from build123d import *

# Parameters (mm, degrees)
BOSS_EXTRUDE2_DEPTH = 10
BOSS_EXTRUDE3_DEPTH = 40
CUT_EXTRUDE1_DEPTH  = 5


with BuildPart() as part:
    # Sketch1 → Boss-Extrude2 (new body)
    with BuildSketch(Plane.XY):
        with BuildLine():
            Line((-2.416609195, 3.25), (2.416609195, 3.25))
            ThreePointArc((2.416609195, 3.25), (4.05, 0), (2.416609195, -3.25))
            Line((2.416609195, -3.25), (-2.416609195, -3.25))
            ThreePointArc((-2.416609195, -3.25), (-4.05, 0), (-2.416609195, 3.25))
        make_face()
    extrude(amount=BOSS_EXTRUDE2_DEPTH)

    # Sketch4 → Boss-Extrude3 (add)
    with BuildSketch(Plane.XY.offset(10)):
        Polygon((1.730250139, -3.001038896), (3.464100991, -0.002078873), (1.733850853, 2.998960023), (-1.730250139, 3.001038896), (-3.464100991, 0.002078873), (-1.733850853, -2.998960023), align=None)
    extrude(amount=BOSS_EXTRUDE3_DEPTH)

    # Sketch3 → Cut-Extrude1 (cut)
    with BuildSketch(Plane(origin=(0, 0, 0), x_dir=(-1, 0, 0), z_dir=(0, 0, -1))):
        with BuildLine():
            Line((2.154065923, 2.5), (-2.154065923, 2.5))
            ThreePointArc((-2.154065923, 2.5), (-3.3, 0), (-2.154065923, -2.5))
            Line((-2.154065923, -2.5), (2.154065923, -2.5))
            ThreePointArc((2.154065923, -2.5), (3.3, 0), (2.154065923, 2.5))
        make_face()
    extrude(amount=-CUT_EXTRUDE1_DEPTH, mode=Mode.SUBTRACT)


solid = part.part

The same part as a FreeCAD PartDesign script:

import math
import FreeCAD as App
import Part
import Sketcher

V = App.Vector
Q = App.Units.Quantity


def add_polygon(sketch, points):
    """Adds a closed chain of lines whose ends are joined by coincident constraints."""
    first, n = sketch.GeometryCount, len(points)
    for a, b in zip(points, points[1:] + points[:1]):
        sketch.addGeometry(Part.LineSegment(App.Vector(*a, 0), App.Vector(*b, 0)), False)
    for i in range(n):
        sketch.addConstraint(Sketcher.Constraint("Coincident", first + i, 2, first + (i + 1) % n, 1))

doc = App.newDocument("Part")
params = doc.addObject("Spreadsheet::Sheet", "Params")
for row, (alias, value) in enumerate([
    ("sketch1_radius", "4.05 mm"),
    ("pad1_length", "10 mm"),
    ("pad2_length", "40 mm"),
    ("sketch3_radius", "3.3 mm"),
    ("pocket1_length", "5 mm"),
], start=1):
    params.set(f"A{row}", alias)
    params.set(f"B{row}", "=" + value)
    params.setAlias(f"B{row}", alias)

body = doc.addObject("PartDesign::Body", "Body")

# Sketch on XY plane
sketch1 = body.newObject("Sketcher::SketchObject", "Sketch")
sketch1.AttachmentSupport = (doc.getObject("XY_Plane"), [""])
sketch1.MapMode = "FlatFace"
sketch1.addGeometry([
    Part.LineSegment(V(2.416609, 3.25, 0), V(-2.416609, 3.25, 0)),
    Part.ArcOfCircle(Part.Circle(V(0, 0, 0), V(0, 0, 1), 4.05), math.radians(126.633461), math.radians(233.366539)),
    Part.LineSegment(V(-2.416609, -3.25, 0), V(2.416609, -3.25, 0)),
    Part.ArcOfCircle(Part.Circle(V(0, 0, 0), V(0, 0, 1), 4.05), math.radians(-53.366539), math.radians(53.366539)),
], False)
sketch1.addConstraint([
    Sketcher.Constraint("Coincident", 0, 2, 1, 1),
    Sketcher.Constraint("Coincident", 1, 2, 2, 1),
    Sketcher.Constraint("Coincident", 2, 2, 3, 1),
    Sketcher.Constraint("Coincident", 3, 2, 0, 1),
    Sketcher.Constraint("Horizontal", 0),
    Sketcher.Constraint("Horizontal", 2),
    Sketcher.Constraint("Coincident", 1, 3, -1, 1),
    Sketcher.Constraint("Coincident", 3, 3, -1, 1),
    Sketcher.Constraint("Equal", 1, 3),
    Sketcher.Constraint("Vertical", 0, 2, 1, 2),
    Sketcher.Constraint("Radius", 1, Q("4.05 mm")),
    Sketcher.Constraint("DistanceY", 1, 2, 0, 2, Q("6.5 mm")),
])
sketch1.setExpression("Constraints[10]", "Params.sketch1_radius")
pad1 = body.newObject("PartDesign::Pad", "Pad")
pad1.Profile = sketch1
pad1.setExpression("Length", "Params.pad1_length")

# Sketch on XY plane
sketch2 = body.newObject("Sketcher::SketchObject", "Sketch001")
sketch2.AttachmentSupport = (doc.getObject("XY_Plane"), [""])
sketch2.MapMode = "FlatFace"
sketch2.AttachmentOffset = App.Placement(V(0, 0, 10), App.Rotation())
add_polygon(sketch2, [(1.73025, -3.001039), (3.464101, -0.002079), (1.733851, 2.99896), (-1.73025, 3.001039), (-3.464101, 0.002079), (-1.733851, -2.99896)])  # lines 0-5
sketch2.addConstraint([
    Sketcher.Constraint("Symmetric", 0, 2, 3, 2, -1, 1),
    Sketcher.Constraint("Symmetric", 1, 2, 4, 2, -1, 1),
    Sketcher.Constraint("Symmetric", 2, 2, 5, 2, -1, 1),
    Sketcher.Constraint("Equal", 0, 1),
    Sketcher.Constraint("Equal", 1, 2),
    Sketcher.Constraint("DistanceY", 4, 2, 2, 2, Q("5.999999 mm")),
    Sketcher.Constraint("Distance", 0, Q("3.464102 mm")),
    Sketcher.Constraint("DistanceX", 4, 2, 2, 2, Q("0.003601 mm")),
    Sketcher.Constraint("DistanceY", 0, 2, -1, 1, Q("0.002079 mm")),
])
pad2 = body.newObject("PartDesign::Pad", "Pad001")
pad2.Profile = sketch2
pad2.setExpression("Length", "Params.pad2_length")

# Sketch on XY plane
sketch3 = body.newObject("Sketcher::SketchObject", "Sketch002")
sketch3.AttachmentSupport = (doc.getObject("XY_Plane"), [""])
sketch3.MapMode = "FlatFace"
sketch3.addGeometry([
    Part.LineSegment(V(-2.154066, 2.5, 0), V(2.154066, 2.5, 0)),
    Part.ArcOfCircle(Part.Circle(V(0, 0, 0), V(0, 0, 1), 3.3), math.radians(-49.250946), math.radians(49.250946)),
    Part.LineSegment(V(2.154066, -2.5, 0), V(-2.154066, -2.5, 0)),
    Part.ArcOfCircle(Part.Circle(V(0, 0, 0), V(0, 0, 1), 3.3), math.radians(130.749054), math.radians(229.250946)),
], False)
sketch3.addConstraint([
    Sketcher.Constraint("Coincident", 0, 2, 1, 2),
    Sketcher.Constraint("Coincident", 1, 1, 2, 1),
    Sketcher.Constraint("Coincident", 2, 2, 3, 2),
    Sketcher.Constraint("Coincident", 3, 1, 0, 1),
    Sketcher.Constraint("Horizontal", 0),
    Sketcher.Constraint("Horizontal", 2),
    Sketcher.Constraint("Coincident", 1, 3, -1, 1),
    Sketcher.Constraint("Coincident", 3, 3, -1, 1),
    Sketcher.Constraint("Equal", 1, 3),
    Sketcher.Constraint("Vertical", 0, 2, 1, 1),
    Sketcher.Constraint("Radius", 1, Q("3.3 mm")),
    Sketcher.Constraint("DistanceY", 1, 1, 0, 2, Q("5 mm")),
])
sketch3.setExpression("Constraints[10]", "Params.sketch3_radius")
pocket1 = body.newObject("PartDesign::Pocket", "Pocket")
pocket1.Profile = sketch3
pocket1.setExpression("Length", "Params.pocket1_length")
pocket1.Reversed = True

doc.recompute()
